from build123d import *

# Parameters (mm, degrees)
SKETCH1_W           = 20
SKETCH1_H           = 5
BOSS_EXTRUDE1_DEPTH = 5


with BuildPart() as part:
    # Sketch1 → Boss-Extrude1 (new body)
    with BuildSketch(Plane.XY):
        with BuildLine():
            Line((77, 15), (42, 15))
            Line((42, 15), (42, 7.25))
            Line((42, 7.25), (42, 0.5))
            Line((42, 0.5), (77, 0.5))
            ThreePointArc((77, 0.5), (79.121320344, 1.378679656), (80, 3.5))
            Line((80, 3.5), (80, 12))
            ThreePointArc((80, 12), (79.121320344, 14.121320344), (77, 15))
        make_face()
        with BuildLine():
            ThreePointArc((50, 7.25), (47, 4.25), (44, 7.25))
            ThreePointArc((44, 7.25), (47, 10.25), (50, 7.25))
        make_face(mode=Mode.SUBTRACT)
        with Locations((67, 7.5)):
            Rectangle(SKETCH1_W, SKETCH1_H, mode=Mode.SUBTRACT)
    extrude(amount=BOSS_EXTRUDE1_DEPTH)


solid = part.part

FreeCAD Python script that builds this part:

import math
import FreeCAD as App
import Part
import Sketcher

V = App.Vector


def add_polygon(sketch, points):
    """Adds a closed chain of lines whose ends are joined by coincident constraints."""
    first, n = sketch.GeometryCount, len(points)
    for a, b in zip(points, points[1:] + points[:1]):
        sketch.addGeometry(Part.LineSegment(App.Vector(*a, 0), App.Vector(*b, 0)), False)
    for i in range(n):
        sketch.addConstraint(Sketcher.Constraint("Coincident", first + i, 2, first + (i + 1) % n, 1))

doc = App.newDocument("Part")
params = doc.addObject("Spreadsheet::Sheet", "Params")
for row, (alias, value) in enumerate([
    ("sketch1_diameter", "6 mm"),
    ("sketch1_width", "35 mm"),
    ("sketch1_width2", "20 mm"),
    ("sketch1_height", "5 mm"),
    ("sketch1_height2", "14.5 mm"),
    ("pad1_length", "5 mm"),
], start=1):
    params.set(f"A{row}", alias)
    params.set(f"B{row}", "=" + value)
    params.setAlias(f"B{row}", alias)

body = doc.addObject("PartDesign::Body", "Body")

# Sketch on XY plane
sketch1 = body.newObject("Sketcher::SketchObject", "Sketch")
sketch1.AttachmentSupport = (doc.getObject("XY_Plane"), [""])
sketch1.MapMode = "FlatFace"
sketch1.addGeometry(Part.LineSegment(V(77, 15, 0), V(42, 15, 0)), False)  # 0
sketch1.addGeometry(Part.LineSegment(V(42, 15, 0), V(42, 0.5, 0)), False)  # 1
sketch1.addGeometry(Part.LineSegment(V(42, 0.5, 0), V(77, 0.5, 0)), False)  # 2
sketch1.addGeometry(Part.ArcOfCircle(Part.Circle(V(77, 3.5, 0), V(0, 0, 1), 3), math.radians(-90), math.radians(0)), False)  # 3
sketch1.addGeometry(Part.LineSegment(V(80, 3.5, 0), V(80, 12, 0)), False)  # 4
sketch1.addGeometry(Part.ArcOfCircle(Part.Circle(V(77, 12, 0), V(0, 0, 1), 3), math.radians(0), math.radians(90)), False)  # 5
sketch1.addGeometry(Part.Circle(V(47, 7.25, 0), V(0, 0, 1), 3), False)  # 6
add_polygon(sketch1, [(77, 5), (57, 5), (57, 10), (77, 10)])  # lines 7-10
sketch1.addConstraint([
    Sketcher.Constraint("Coincident", 0, 2, 1, 1),
    Sketcher.Constraint("Coincident", 1, 2, 2, 1),
    Sketcher.Constraint("Tangent", 2, 2, 3, 1),
    Sketcher.Constraint("Tangent", 3, 2, 4, 1),
    Sketcher.Constraint("Tangent", 4, 2, 5, 1),
    Sketcher.Constraint("Tangent", 5, 2, 0, 1),
    Sketcher.Constraint("Horizontal", 0),
    Sketcher.Constraint("Vertical", 1),
    Sketcher.Constraint("Horizontal", 2),
    Sketcher.Constraint("Vertical", 4),
    Sketcher.Constraint("Horizontal", 7),
    Sketcher.Constraint("Vertical", 8),
    Sketcher.Constraint("Horizontal", 9),
    Sketcher.Constraint("Vertical", 10),
    Sketcher.Constraint("Equal", 3, 5),
    Sketcher.Constraint("Equal", 5, 6),
    Sketcher.Constraint("Vertical", 5, 2, 9, 2),
    Sketcher.Constraint("Diameter", 6, 6.0),
    Sketcher.Constraint("DistanceX", 0, 2, 0, 1, 35.0),
    Sketcher.Constraint("DistanceX", 7, 2, 7, 1, 20.0),
    Sketcher.Constraint("DistanceY", 8, 1, 8, 2, 5.0),
    Sketcher.Constraint("DistanceY", 1, 2, 1, 1, 14.5),
    Sketcher.Constraint("DistanceX", -1, 1, 3, 3, 77.0),
    Sketcher.Constraint("DistanceY", -1, 1, 5, 3, 12.0),
    Sketcher.Constraint("DistanceX", -1, 1, 6, 3, 47.0),
    Sketcher.Constraint("DistanceY", -1, 1, 7, 2, 5.0),
    Sketcher.Constraint("DistanceY", -1, 1, 6, 3, 7.25),
])
sketch1.setExpression("Constraints[21]", "Params.sketch1_diameter")
sketch1.setExpression("Constraints[22]", "Params.sketch1_width")
sketch1.setExpression("Constraints[23]", "Params.sketch1_width2")
sketch1.setExpression("Constraints[24]", "Params.sketch1_height")
sketch1.setExpression("Constraints[25]", "Params.sketch1_height2")
pad1 = body.newObject("PartDesign::Pad", "Pad")
pad1.Profile = sketch1
pad1.setExpression("Length", "Params.pad1_length")

doc.recompute()
